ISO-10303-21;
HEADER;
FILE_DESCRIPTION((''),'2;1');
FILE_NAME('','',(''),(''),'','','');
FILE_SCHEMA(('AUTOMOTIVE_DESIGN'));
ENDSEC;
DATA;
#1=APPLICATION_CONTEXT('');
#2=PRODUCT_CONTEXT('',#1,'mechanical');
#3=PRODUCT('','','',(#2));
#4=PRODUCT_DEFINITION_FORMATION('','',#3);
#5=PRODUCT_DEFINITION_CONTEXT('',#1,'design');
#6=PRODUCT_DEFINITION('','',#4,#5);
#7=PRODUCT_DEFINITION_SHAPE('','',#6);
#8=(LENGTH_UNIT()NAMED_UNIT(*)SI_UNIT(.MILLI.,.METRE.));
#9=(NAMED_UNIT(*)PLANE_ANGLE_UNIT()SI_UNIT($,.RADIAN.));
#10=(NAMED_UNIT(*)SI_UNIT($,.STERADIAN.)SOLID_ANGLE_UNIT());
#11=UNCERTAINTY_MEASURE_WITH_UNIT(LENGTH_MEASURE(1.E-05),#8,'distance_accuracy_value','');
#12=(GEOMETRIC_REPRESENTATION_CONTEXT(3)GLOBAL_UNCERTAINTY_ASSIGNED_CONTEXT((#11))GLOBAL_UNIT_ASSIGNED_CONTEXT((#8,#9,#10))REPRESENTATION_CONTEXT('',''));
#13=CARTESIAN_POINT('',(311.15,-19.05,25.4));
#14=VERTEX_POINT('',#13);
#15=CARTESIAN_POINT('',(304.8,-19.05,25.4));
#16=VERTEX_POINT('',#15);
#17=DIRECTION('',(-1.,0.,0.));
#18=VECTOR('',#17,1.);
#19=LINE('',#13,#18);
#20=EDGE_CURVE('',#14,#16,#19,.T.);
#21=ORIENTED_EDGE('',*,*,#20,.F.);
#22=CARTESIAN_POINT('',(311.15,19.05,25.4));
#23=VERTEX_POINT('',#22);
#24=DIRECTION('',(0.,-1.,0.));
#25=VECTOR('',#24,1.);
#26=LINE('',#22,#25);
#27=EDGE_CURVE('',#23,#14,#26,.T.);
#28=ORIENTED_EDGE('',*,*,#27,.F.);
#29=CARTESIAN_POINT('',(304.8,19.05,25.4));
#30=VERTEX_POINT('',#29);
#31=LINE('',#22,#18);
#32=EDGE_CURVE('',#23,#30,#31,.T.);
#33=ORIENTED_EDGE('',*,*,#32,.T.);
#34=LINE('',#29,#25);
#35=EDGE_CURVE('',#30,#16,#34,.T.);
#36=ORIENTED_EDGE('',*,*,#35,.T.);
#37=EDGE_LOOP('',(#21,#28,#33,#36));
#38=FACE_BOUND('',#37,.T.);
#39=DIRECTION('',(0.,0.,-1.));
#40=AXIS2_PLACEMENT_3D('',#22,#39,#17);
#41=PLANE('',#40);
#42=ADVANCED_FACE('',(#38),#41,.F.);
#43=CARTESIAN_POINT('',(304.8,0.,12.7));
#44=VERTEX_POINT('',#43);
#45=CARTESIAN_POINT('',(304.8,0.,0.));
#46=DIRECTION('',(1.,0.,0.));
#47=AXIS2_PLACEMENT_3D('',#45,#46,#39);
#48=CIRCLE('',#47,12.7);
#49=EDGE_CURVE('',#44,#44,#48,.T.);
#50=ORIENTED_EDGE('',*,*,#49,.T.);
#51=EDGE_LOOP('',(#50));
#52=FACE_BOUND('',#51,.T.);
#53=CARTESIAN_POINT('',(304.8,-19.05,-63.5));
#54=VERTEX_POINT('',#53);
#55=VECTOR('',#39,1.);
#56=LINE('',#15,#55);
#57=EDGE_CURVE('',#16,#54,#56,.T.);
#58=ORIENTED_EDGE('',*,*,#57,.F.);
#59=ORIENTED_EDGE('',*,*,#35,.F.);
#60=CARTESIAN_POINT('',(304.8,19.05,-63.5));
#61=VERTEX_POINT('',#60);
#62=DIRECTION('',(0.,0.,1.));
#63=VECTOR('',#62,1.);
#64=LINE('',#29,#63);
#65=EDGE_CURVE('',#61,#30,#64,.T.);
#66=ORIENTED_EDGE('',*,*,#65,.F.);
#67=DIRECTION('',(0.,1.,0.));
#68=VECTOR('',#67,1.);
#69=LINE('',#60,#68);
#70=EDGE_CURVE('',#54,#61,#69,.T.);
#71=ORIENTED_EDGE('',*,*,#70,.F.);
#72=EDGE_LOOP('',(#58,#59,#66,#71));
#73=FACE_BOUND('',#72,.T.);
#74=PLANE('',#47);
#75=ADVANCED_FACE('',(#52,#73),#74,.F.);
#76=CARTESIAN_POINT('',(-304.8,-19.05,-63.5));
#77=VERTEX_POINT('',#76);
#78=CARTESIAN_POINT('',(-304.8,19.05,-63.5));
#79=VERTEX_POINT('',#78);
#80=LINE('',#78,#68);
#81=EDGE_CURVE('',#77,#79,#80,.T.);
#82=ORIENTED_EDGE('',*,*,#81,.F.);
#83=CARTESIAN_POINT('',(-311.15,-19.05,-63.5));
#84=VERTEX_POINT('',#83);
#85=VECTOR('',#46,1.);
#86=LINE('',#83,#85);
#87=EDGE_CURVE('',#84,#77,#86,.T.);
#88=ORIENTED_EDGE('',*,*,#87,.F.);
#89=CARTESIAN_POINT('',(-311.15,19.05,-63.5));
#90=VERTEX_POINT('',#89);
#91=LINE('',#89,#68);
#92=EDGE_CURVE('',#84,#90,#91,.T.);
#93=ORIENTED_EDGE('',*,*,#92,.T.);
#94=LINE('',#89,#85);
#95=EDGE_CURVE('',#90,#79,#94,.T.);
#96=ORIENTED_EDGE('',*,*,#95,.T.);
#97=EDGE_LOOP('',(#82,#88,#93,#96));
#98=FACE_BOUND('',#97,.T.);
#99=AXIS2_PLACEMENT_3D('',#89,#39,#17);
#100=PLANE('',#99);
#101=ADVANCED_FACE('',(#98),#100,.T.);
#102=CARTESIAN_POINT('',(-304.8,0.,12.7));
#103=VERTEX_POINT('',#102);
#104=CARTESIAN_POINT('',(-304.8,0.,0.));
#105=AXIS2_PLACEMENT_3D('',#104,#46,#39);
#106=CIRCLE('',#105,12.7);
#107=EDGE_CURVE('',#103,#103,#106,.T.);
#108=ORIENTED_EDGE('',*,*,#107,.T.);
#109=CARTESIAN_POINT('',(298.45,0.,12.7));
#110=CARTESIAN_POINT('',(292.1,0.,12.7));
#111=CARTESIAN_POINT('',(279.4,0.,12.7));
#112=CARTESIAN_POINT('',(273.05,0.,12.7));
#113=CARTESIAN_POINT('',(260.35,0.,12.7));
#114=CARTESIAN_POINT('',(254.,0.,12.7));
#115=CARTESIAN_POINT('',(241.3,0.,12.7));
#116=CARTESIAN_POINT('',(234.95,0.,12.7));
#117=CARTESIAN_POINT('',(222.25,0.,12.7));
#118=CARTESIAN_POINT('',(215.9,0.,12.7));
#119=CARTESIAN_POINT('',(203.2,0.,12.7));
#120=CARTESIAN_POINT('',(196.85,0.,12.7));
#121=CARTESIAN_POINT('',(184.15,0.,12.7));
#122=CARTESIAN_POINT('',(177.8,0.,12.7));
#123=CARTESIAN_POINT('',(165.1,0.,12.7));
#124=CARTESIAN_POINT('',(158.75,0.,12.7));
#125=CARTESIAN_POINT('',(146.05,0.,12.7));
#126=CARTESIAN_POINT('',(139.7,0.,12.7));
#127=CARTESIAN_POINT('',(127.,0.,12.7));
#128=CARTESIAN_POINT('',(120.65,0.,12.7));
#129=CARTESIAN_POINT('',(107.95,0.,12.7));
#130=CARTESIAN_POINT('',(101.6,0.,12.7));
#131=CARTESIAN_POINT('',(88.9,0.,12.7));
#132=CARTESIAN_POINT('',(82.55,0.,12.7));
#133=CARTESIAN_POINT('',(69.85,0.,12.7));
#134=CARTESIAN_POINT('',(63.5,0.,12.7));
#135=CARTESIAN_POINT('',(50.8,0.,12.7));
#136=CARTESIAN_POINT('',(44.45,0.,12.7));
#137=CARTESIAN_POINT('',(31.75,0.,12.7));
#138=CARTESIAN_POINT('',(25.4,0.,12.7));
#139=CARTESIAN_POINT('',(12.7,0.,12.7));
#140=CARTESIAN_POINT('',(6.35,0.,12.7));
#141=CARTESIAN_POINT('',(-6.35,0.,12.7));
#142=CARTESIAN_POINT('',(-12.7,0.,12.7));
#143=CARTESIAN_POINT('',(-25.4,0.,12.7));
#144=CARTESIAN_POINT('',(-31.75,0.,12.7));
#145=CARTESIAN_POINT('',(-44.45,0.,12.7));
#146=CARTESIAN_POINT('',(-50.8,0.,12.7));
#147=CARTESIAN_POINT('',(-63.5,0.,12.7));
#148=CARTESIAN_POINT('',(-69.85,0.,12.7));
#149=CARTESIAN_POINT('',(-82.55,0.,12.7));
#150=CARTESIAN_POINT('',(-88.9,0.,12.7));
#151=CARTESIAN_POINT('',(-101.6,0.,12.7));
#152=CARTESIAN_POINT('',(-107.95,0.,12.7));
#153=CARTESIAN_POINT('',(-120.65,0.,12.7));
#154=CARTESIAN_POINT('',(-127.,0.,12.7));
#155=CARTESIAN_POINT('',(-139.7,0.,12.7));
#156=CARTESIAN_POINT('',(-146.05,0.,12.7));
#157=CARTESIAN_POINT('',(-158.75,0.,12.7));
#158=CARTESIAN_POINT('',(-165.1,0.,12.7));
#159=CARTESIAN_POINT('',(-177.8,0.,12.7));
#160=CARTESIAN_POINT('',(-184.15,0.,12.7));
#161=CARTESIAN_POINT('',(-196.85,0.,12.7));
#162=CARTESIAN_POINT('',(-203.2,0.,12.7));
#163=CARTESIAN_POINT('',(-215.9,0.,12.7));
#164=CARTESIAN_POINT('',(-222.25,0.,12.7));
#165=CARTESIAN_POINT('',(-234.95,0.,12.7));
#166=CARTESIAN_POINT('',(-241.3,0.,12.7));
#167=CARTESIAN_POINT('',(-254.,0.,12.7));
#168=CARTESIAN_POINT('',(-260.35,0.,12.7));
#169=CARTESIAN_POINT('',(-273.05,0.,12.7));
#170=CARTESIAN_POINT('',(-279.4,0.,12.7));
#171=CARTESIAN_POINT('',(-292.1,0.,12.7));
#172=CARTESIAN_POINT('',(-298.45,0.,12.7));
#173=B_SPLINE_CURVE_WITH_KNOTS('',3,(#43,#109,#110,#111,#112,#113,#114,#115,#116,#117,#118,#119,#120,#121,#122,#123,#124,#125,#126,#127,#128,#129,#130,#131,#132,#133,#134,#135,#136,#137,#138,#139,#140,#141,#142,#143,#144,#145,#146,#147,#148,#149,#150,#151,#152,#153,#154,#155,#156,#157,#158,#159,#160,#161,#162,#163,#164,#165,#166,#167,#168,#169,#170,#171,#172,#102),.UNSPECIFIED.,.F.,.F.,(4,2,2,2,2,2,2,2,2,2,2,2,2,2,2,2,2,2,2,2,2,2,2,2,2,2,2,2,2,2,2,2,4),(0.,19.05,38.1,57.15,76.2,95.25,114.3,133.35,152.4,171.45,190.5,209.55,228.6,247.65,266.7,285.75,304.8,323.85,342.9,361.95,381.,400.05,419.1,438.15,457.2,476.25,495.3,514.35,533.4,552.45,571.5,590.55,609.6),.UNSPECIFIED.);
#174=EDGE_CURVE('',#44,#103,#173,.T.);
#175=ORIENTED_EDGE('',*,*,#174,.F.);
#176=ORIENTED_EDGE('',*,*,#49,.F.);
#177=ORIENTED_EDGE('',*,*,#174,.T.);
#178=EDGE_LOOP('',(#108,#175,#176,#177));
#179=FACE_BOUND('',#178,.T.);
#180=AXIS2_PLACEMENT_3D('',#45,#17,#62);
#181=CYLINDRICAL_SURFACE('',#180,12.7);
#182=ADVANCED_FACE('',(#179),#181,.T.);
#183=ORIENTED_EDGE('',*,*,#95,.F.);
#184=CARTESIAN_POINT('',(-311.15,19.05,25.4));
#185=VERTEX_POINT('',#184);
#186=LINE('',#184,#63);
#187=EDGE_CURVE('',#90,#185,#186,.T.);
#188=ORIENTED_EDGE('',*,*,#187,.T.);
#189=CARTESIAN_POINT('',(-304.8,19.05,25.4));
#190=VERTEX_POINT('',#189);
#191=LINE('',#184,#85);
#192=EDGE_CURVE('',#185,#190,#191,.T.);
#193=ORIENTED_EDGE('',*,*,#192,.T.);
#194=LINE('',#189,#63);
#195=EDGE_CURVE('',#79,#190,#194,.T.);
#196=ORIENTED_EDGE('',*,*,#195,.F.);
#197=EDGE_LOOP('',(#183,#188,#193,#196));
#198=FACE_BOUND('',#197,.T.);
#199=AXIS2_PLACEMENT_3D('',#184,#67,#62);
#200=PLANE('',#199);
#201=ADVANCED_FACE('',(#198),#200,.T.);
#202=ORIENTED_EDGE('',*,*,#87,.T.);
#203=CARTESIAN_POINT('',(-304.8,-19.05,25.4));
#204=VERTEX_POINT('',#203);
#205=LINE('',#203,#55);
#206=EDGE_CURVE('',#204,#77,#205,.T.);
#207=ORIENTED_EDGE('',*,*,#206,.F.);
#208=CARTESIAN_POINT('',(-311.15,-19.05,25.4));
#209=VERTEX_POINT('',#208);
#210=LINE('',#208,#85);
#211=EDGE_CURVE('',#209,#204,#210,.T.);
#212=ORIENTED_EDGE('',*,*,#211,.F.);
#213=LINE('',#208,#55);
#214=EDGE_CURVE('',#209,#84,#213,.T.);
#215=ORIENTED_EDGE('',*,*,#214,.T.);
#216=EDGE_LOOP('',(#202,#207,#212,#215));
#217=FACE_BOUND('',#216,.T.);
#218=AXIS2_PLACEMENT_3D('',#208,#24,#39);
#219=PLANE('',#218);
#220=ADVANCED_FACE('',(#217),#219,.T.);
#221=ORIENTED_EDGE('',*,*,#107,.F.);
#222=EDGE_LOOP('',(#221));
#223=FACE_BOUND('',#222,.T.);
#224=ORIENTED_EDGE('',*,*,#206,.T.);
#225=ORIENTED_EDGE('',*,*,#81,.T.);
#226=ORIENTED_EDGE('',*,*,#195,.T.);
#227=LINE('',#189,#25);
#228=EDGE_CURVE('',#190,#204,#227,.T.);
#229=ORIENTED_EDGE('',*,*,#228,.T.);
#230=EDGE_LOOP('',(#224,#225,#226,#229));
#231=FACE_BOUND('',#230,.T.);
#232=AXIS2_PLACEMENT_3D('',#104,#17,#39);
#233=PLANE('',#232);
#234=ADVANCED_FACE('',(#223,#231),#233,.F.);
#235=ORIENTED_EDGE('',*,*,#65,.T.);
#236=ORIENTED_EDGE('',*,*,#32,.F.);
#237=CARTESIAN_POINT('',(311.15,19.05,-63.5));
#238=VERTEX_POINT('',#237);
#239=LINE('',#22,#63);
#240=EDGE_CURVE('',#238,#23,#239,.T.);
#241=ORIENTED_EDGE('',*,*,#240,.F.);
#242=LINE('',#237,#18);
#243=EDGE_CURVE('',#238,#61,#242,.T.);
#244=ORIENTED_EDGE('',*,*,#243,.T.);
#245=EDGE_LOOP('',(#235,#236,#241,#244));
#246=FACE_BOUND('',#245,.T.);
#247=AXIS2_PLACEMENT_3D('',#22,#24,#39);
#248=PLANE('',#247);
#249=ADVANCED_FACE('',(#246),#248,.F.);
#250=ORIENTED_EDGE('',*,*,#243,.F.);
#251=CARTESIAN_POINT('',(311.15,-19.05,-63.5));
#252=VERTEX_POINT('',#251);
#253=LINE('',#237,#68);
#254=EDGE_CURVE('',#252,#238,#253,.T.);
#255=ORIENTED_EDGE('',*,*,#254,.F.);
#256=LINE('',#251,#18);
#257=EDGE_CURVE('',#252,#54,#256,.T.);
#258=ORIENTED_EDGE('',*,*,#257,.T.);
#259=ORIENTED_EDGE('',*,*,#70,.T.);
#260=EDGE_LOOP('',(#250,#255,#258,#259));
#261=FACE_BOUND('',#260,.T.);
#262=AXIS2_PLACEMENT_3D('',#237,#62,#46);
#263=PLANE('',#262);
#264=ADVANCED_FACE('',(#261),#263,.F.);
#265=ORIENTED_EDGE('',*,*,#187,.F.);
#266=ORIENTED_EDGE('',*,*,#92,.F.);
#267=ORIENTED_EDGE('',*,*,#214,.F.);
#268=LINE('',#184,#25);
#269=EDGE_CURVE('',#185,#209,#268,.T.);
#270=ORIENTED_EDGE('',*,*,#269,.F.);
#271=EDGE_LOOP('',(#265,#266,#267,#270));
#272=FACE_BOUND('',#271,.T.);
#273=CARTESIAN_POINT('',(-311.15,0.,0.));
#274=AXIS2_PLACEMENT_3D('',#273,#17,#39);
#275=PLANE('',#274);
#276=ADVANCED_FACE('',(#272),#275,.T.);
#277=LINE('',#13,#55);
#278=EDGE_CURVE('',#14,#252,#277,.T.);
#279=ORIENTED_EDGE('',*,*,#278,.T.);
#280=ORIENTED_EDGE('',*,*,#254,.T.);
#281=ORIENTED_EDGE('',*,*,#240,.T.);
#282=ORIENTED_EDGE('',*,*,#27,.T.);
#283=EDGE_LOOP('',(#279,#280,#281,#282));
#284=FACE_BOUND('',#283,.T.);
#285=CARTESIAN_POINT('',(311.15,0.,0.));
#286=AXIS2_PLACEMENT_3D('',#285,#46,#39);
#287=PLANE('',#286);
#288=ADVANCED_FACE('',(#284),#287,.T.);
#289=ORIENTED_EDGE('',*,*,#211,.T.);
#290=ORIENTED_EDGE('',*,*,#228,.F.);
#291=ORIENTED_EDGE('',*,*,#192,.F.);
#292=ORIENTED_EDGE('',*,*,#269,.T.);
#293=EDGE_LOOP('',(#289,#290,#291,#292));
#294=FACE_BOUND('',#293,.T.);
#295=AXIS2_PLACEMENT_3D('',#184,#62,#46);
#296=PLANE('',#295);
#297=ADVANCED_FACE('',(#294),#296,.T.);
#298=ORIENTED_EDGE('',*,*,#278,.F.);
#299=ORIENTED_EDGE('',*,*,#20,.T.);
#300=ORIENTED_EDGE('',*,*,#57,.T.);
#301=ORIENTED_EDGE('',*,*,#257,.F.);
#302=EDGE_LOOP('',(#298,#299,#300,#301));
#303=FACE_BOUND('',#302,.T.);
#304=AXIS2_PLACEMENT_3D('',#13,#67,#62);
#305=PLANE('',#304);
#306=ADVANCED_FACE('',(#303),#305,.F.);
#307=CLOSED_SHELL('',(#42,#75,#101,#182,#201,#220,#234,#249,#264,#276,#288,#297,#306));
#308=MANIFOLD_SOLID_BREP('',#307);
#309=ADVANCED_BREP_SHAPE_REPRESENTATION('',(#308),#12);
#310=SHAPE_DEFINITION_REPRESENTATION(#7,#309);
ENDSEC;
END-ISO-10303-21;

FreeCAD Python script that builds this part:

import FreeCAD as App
import Part
import Sketcher
from FreeCAD import Vector
Q = App.Units.Quantity


def add_polygon(sketch, points):
    """Adds a closed chain of lines whose ends are joined by coincident constraints."""
    first, n = sketch.GeometryCount, len(points)
    for a, b in zip(points, points[1:] + points[:1]):
        sketch.addGeometry(Part.LineSegment(App.Vector(*a, 0), App.Vector(*b, 0)), False)
    for i in range(n):
        sketch.addConstraint(Sketcher.Constraint("Coincident", first + i, 2, first + (i + 1) % n, 1))

doc = App.newDocument("Part")
params = doc.addObject("Spreadsheet::Sheet", "Params")
for row, (alias, value) in enumerate([
    ("sketch1_diameter", "1 in"),
    ("pad1_length", "24 in"),
    ("sketch2_width", "1.5 in"),
    ("sketch2_height", "3.5 in"),
    ("pad2_length", "0.25 in"),
], start=1):
    params.set(f"A{row}", alias)
    params.set(f"B{row}", "=" + value)
    params.setAlias(f"B{row}", alias)

body = doc.addObject("PartDesign::Body", "Body")

sketch1 = body.newObject("Sketcher::SketchObject", "Sketch")
sketch1.AttachmentSupport = (doc.getObject("YZ_Plane"), [""])
sketch1.MapMode = "FlatFace"
sketch1.addGeometry(Part.Circle(Vector(0, 0, 0), Vector(0, 0, 1), 13), False)
sketch1.addConstraint([
    Sketcher.Constraint("Coincident", 0, 3, -1, 1),
    Sketcher.Constraint("Diameter", 0, Q("1 in")),
])
sketch1.setExpression("Constraints[1]", "Params.sketch1_diameter")
pad1 = body.newObject("PartDesign::Pad", "Pad")
pad1.Profile = sketch1
pad1.setExpression("Length", "Params.pad1_length")
pad1.Midplane = True

sketch2 = body.newObject("Sketcher::SketchObject", "Sketch001")
sketch2.AttachmentSupport = (doc.getObject("YZ_Plane"), [""])
sketch2.MapMode = "FlatFace"
sketch2.AttachmentOffset = App.Placement(Vector(0, 0, 12 * 25.4), App.Rotation())
add_polygon(sketch2, [(19, 25), (-19, 25), (-19, -64), (19, -64)])
sketch2.addConstraint([
    Sketcher.Constraint("Horizontal", 0),
    Sketcher.Constraint("Vertical", 1),
    Sketcher.Constraint("Horizontal", 2),
    Sketcher.Constraint("Vertical", 3),
    Sketcher.Constraint("DistanceX", 0, 2, 0, 1, Q("1.5 in")),
    Sketcher.Constraint("DistanceY", 1, 2, 1, 1, Q("3.5 in")),
    Sketcher.Constraint("DistanceY", -1, 1, 0, 2, Q("1 in")),
    Sketcher.Constraint("DistanceX", 0, 2, -1, 1, Q("0.75 in")),
])
sketch2.setExpression("Constraints[8]", "Params.sketch2_width")
sketch2.setExpression("Constraints[9]", "Params.sketch2_height")
pad2 = body.newObject("PartDesign::Pad", "Pad001")
pad2.Profile = sketch2
pad2.setExpression("Length", "Params.pad2_length")
doc.recompute()

mirrored = body.newObject("PartDesign::Mirrored", "Mirrored")
mirrored.Originals = [pad2]
mirrored.MirrorPlane = (doc.getObject("YZ_Plane"), [""])
body.Tip = mirrored

doc.recompute()
